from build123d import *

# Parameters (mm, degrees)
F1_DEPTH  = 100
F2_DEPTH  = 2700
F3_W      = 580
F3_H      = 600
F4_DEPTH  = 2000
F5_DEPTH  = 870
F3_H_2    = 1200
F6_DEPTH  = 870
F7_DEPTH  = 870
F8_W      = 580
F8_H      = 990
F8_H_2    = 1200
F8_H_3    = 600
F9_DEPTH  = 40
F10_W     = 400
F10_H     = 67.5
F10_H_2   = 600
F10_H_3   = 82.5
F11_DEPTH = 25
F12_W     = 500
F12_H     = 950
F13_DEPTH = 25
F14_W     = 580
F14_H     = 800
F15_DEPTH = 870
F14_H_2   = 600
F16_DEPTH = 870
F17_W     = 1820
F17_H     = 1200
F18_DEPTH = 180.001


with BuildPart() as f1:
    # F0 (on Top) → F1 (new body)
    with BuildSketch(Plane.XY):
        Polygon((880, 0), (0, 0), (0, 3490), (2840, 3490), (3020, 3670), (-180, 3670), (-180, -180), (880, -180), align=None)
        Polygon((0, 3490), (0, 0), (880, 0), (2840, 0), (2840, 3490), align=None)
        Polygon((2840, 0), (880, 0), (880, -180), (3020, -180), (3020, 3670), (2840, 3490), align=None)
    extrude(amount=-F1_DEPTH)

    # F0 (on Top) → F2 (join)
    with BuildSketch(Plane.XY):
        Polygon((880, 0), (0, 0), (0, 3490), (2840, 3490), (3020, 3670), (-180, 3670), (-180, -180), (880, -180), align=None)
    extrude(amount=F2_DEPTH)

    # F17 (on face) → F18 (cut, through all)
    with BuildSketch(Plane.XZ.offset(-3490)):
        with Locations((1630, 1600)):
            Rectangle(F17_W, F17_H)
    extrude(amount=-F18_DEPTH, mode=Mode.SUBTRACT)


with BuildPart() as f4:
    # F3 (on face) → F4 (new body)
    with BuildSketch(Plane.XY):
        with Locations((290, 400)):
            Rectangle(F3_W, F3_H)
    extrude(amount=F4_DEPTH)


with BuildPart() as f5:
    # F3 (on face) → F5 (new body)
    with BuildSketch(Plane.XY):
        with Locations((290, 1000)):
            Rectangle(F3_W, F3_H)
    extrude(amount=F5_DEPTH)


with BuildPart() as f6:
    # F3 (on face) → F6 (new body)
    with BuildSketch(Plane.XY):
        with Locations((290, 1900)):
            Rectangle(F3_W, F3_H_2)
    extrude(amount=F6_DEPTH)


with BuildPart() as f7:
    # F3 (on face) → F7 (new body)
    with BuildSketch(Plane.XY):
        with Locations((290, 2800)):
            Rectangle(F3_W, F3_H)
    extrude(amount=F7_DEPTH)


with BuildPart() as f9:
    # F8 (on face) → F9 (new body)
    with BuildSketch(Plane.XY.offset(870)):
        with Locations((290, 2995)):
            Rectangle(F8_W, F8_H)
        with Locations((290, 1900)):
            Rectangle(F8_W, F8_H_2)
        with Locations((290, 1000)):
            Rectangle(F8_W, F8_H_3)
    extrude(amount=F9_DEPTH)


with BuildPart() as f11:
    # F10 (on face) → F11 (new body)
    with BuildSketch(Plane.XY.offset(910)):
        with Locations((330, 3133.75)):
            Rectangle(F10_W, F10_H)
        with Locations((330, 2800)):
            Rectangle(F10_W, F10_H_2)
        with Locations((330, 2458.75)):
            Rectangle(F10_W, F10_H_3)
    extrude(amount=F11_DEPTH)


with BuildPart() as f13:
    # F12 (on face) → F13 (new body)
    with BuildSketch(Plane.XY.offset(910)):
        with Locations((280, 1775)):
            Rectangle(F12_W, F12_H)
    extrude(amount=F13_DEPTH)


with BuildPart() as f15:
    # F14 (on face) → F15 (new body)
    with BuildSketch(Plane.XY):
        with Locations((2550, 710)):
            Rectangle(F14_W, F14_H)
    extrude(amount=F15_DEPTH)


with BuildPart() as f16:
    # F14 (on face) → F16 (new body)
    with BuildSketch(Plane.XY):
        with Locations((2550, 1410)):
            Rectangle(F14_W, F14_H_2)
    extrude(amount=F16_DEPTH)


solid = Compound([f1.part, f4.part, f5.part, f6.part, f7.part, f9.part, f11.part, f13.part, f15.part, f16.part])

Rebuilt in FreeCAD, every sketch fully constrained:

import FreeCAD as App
import Part
import Sketcher
from FreeCAD import Vector
Q = App.Units.Quantity

doc = App.newDocument("Part")
params = doc.addObject("Spreadsheet::Sheet", "Params")
for row, (alias, value) in enumerate([
    ("sketch1_width", "3200 mm"),
    ("sketch1_height", "3850 mm"),
    ("pad1_length", "100 mm"),
    ("sketch2_width", "880 mm"),
    ("sketch2_width2", "2840 mm"),
    ("sketch2_width3", "3200 mm"),
    ("sketch2_width4", "1060 mm"),
    ("sketch2_height", "3490 mm"),
    ("pad2_length", "2700 mm"),
    ("sketch3_width", "1820 mm"),
    ("sketch3_height", "1200 mm"),
    ("sketch4_width", "580 mm"),
    ("sketch4_height", "600 mm"),
    ("pad3_length", "2000 mm"),
    ("sketch5_width", "580 mm"),
    ("sketch5_height", "600 mm"),
    ("pad4_length", "870 mm"),
    ("sketch6_width", "580 mm"),
    ("sketch6_height", "1200 mm"),
    ("pad5_length", "870 mm"),
    ("sketch7_width", "580 mm"),
    ("sketch7_height", "600 mm"),
    ("pad6_length", "870 mm"),
    ("sketch8_width", "580 mm"),
    ("sketch8_height", "2790 mm"),
    ("pad7_length", "40 mm"),
    ("sketch9_width", "400 mm"),
    ("sketch9_height", "750 mm"),
    ("pad8_length", "25 mm"),
    ("sketch10_width", "500 mm"),
    ("sketch10_height", "950 mm"),
    ("pad9_length", "25 mm"),
    ("sketch11_width", "580 mm"),
    ("sketch11_height", "800 mm"),
    ("pad10_length", "870 mm"),
    ("sketch12_width", "580 mm"),
    ("sketch12_height", "600 mm"),
    ("pad11_length", "870 mm"),
], start=1):
    params.set(f"A{row}", alias)
    params.set(f"B{row}", "=" + value)
    params.setAlias(f"B{row}", alias)

body = doc.addObject("PartDesign::Body", "Body")

sketch1 = body.newObject("Sketcher::SketchObject", "Sketch")
sketch1.AttachmentSupport = (doc.getObject("XY_Plane"), [""])
sketch1.MapMode = "FlatFace"
sketch1.addGeometry(Part.LineSegment(Vector(3020, 3670, 0), Vector(-180, 3670, 0)), False)
sketch1.addGeometry(Part.LineSegment(Vector(-180, 3670, 0), Vector(-180, -180, 0)), False)
sketch1.addGeometry(Part.LineSegment(Vector(-180, -180, 0), Vector(3020, -180, 0)), False)
sketch1.addGeometry(Part.LineSegment(Vector(3020, -180, 0), Vector(3020, 3670, 0)), False)
sketch1.addConstraint(Sketcher.Constraint("Coincident", 0, 2, 1, 1))
sketch1.addConstraint(Sketcher.Constraint("Coincident", 1, 2, 2, 1))
sketch1.addConstraint(Sketcher.Constraint("Coincident", 2, 2, 3, 1))
sketch1.addConstraint(Sketcher.Constraint("Coincident", 3, 2, 0, 1))
sketch1.addConstraint(Sketcher.Constraint("Horizontal", 0))
sketch1.addConstraint(Sketcher.Constraint("Vertical", 1))
sketch1.addConstraint(Sketcher.Constraint("Horizontal", 2))
sketch1.addConstraint(Sketcher.Constraint("Vertical", 3))
sketch1.addConstraint(Sketcher.Constraint("DistanceX", 0, 2, 0, 1, Q("3200 mm")))
sketch1.addConstraint(Sketcher.Constraint("DistanceY", 1, 2, 1, 1, Q("3850 mm")))
sketch1.addConstraint(Sketcher.Constraint("DistanceX", 0, 2, -1, 1, Q("180 mm")))
sketch1.addConstraint(Sketcher.Constraint("DistanceY", -1, 1, 0, 2, Q("3670 mm")))
sketch1.setExpression("Constraints[8]", "Params.sketch1_width")
sketch1.setExpression("Constraints[9]", "Params.sketch1_height")
pad1 = body.newObject("PartDesign::Pad", "Pad")
pad1.Profile = sketch1
pad1.setExpression("Length", "Params.pad1_length")
pad1.Reversed = True

sketch2 = body.newObject("Sketcher::SketchObject", "Sketch001")
sketch2.AttachmentSupport = (doc.getObject("XY_Plane"), [""])
sketch2.MapMode = "FlatFace"
sketch2.addGeometry(Part.LineSegment(Vector(880, 0, 0), Vector(0, 0, 0)), False)
sketch2.addGeometry(Part.LineSegment(Vector(0, 0, 0), Vector(0, 3490, 0)), False)
sketch2.addGeometry(Part.LineSegment(Vector(0, 3490, 0), Vector(2840, 3490, 0)), False)
sketch2.addGeometry(Part.LineSegment(Vector(2840, 3490, 0), Vector(3020, 3670, 0)), False)
sketch2.addGeometry(Part.LineSegment(Vector(3020, 3670, 0), Vector(-180, 3670, 0)), False)
sketch2.addGeometry(Part.LineSegment(Vector(-180, 3670, 0), Vector(-180, -180, 0)), False)
sketch2.addGeometry(Part.LineSegment(Vector(-180, -180, 0), Vector(880, -180, 0)), False)
sketch2.addGeometry(Part.LineSegment(Vector(880, -180, 0), Vector(880, 0, 0)), False)
sketch2.addConstraint(Sketcher.Constraint("Coincident", 0, 2, 1, 1))
sketch2.addConstraint(Sketcher.Constraint("Coincident", 1, 2, 2, 1))
sketch2.addConstraint(Sketcher.Constraint("Coincident", 2, 2, 3, 1))
sketch2.addConstraint(Sketcher.Constraint("Coincident", 3, 2, 4, 1))
sketch2.addConstraint(Sketcher.Constraint("Coincident", 4, 2, 5, 1))
sketch2.addConstraint(Sketcher.Constraint("Coincident", 5, 2, 6, 1))
sketch2.addConstraint(Sketcher.Constraint("Coincident", 6, 2, 7, 1))
sketch2.addConstraint(Sketcher.Constraint("Coincident", 7, 2, 0, 1))
sketch2.addConstraint(Sketcher.Constraint("Horizontal", 0))
sketch2.addConstraint(Sketcher.Constraint("Vertical", 1))
sketch2.addConstraint(Sketcher.Constraint("Horizontal", 2))
sketch2.addConstraint(Sketcher.Constraint("Horizontal", 4))
sketch2.addConstraint(Sketcher.Constraint("Vertical", 5))
sketch2.addConstraint(Sketcher.Constraint("Horizontal", 6))
sketch2.addConstraint(Sketcher.Constraint("Vertical", 7))
sketch2.addConstraint(Sketcher.Constraint("Coincident", 0, 2, -1, 1))
sketch2.addConstraint(Sketcher.Constraint("DistanceX", 0, 2, 0, 1, Q("880 mm")))
sketch2.addConstraint(Sketcher.Constraint("DistanceX", 2, 1, 2, 2, Q("2840 mm")))
sketch2.addConstraint(Sketcher.Constraint("DistanceX", 4, 2, 4, 1, Q("3200 mm")))
sketch2.addConstraint(Sketcher.Constraint("DistanceX", 6, 1, 6, 2, Q("1060 mm")))
sketch2.addConstraint(Sketcher.Constraint("DistanceY", 1, 1, 1, 2, Q("3490 mm")))
sketch2.addConstraint(Sketcher.Constraint("DistanceY", 5, 2, 5, 1, Q("3850 mm")))
sketch2.addConstraint(Sketcher.Constraint("DistanceY", 7, 1, 7, 2, Q("180 mm")))
sketch2.setExpression("Constraints[16]", "Params.sketch2_width")
sketch2.setExpression("Constraints[17]", "Params.sketch2_width2")
sketch2.setExpression("Constraints[18]", "Params.sketch2_width3")
sketch2.setExpression("Constraints[19]", "Params.sketch2_width4")
sketch2.setExpression("Constraints[20]", "Params.sketch2_height")
pad2 = body.newObject("PartDesign::Pad", "Pad001")
pad2.Profile = sketch2
pad2.setExpression("Length", "Params.pad2_length")

sketch3 = body.newObject("Sketcher::SketchObject", "Sketch002")
sketch3.AttachmentSupport = (doc.getObject("XZ_Plane"), [""])
sketch3.MapMode = "FlatFace"
sketch3.AttachmentOffset = App.Placement(Vector(0, 0, -3490), App.Rotation())
sketch3.addGeometry(Part.LineSegment(Vector(720, 2200, 0), Vector(720, 1000, 0)), False)
sketch3.addGeometry(Part.LineSegment(Vector(720, 1000, 0), Vector(2540, 1000, 0)), False)
sketch3.addGeometry(Part.LineSegment(Vector(2540, 1000, 0), Vector(2540, 2200, 0)), False)
sketch3.addGeometry(Part.LineSegment(Vector(2540, 2200, 0), Vector(720, 2200, 0)), False)
sketch3.addConstraint(Sketcher.Constraint("Coincident", 0, 2, 1, 1))
sketch3.addConstraint(Sketcher.Constraint("Coincident", 1, 2, 2, 1))
sketch3.addConstraint(Sketcher.Constraint("Coincident", 2, 2, 3, 1))
sketch3.addConstraint(Sketcher.Constraint("Coincident", 3, 2, 0, 1))
sketch3.addConstraint(Sketcher.Constraint("Vertical", 0))
sketch3.addConstraint(Sketcher.Constraint("Horizontal", 1))
sketch3.addConstraint(Sketcher.Constraint("Vertical", 2))
sketch3.addConstraint(Sketcher.Constraint("Horizontal", 3))
sketch3.addConstraint(Sketcher.Constraint("DistanceX", 1, 1, 1, 2, Q("1820 mm")))
sketch3.addConstraint(Sketcher.Constraint("DistanceY", 0, 2, 0, 1, Q("1200 mm")))
sketch3.addConstraint(Sketcher.Constraint("DistanceX", -1, 1, 0, 2, Q("720 mm")))
sketch3.addConstraint(Sketcher.Constraint("DistanceY", -1, 1, 0, 2, Q("1000 mm")))
sketch3.setExpression("Constraints[8]", "Params.sketch3_width")
sketch3.setExpression("Constraints[9]", "Params.sketch3_height")
pocket1 = body.newObject("PartDesign::Pocket", "Pocket")
pocket1.Profile = sketch3
pocket1.Type = "ThroughAll"
body2 = doc.addObject("PartDesign::Body", "Body001")

sketch4 = body2.newObject("Sketcher::SketchObject", "Sketch003")
sketch4.AttachmentSupport = (doc.getObject("XY_Plane001"), [""])
sketch4.MapMode = "FlatFace"
sketch4.addGeometry(Part.LineSegment(Vector(0, 700, 0), Vector(0, 100, 0)), False)
sketch4.addGeometry(Part.LineSegment(Vector(0, 100, 0), Vector(580, 100, 0)), False)
sketch4.addGeometry(Part.LineSegment(Vector(580, 100, 0), Vector(580, 700, 0)), False)
sketch4.addGeometry(Part.LineSegment(Vector(580, 700, 0), Vector(0, 700, 0)), False)
sketch4.addConstraint(Sketcher.Constraint("Coincident", 0, 2, 1, 1))
sketch4.addConstraint(Sketcher.Constraint("Coincident", 1, 2, 2, 1))
sketch4.addConstraint(Sketcher.Constraint("Coincident", 2, 2, 3, 1))
sketch4.addConstraint(Sketcher.Constraint("Coincident", 3, 2, 0, 1))
sketch4.addConstraint(Sketcher.Constraint("Vertical", 0))
sketch4.addConstraint(Sketcher.Constraint("Horizontal", 1))
sketch4.addConstraint(Sketcher.Constraint("Vertical", 2))
sketch4.addConstraint(Sketcher.Constraint("Horizontal", 3))
sketch4.addConstraint(Sketcher.Constraint("PointOnObject", 0, 2, -2))
sketch4.addConstraint(Sketcher.Constraint("DistanceX", 1, 1, 1, 2, Q("580 mm")))
sketch4.addConstraint(Sketcher.Constraint("DistanceY", 0, 2, 0, 1, Q("600 mm")))
sketch4.addConstraint(Sketcher.Constraint("DistanceY", -1, 1, 0, 2, Q("100 mm")))
sketch4.setExpression("Constraints[9]", "Params.sketch4_width")
sketch4.setExpression("Constraints[10]", "Params.sketch4_height")
pad3 = body2.newObject("PartDesign::Pad", "Pad002")
pad3.Profile = sketch4
pad3.setExpression("Length", "Params.pad3_length")
body3 = doc.addObject("PartDesign::Body", "Body002")

sketch5 = body3.newObject("Sketcher::SketchObject", "Sketch004")
sketch5.AttachmentSupport = (doc.getObject("XY_Plane002"), [""])
sketch5.MapMode = "FlatFace"
sketch5.addGeometry(Part.LineSegment(Vector(0, 1300, 0), Vector(0, 700, 0)), False)
sketch5.addGeometry(Part.LineSegment(Vector(0, 700, 0), Vector(580, 700, 0)), False)
sketch5.addGeometry(Part.LineSegment(Vector(580, 700, 0), Vector(580, 1300, 0)), False)
sketch5.addGeometry(Part.LineSegment(Vector(580, 1300, 0), Vector(0, 1300, 0)), False)
sketch5.addConstraint(Sketcher.Constraint("Coincident", 0, 2, 1, 1))
sketch5.addConstraint(Sketcher.Constraint("Coincident", 1, 2, 2, 1))
sketch5.addConstraint(Sketcher.Constraint("Coincident", 2, 2, 3, 1))
sketch5.addConstraint(Sketcher.Constraint("Coincident", 3, 2, 0, 1))
sketch5.addConstraint(Sketcher.Constraint("Vertical", 0))
sketch5.addConstraint(Sketcher.Constraint("Horizontal", 1))
sketch5.addConstraint(Sketcher.Constraint("Vertical", 2))
sketch5.addConstraint(Sketcher.Constraint("Horizontal", 3))
sketch5.addConstraint(Sketcher.Constraint("PointOnObject", 0, 2, -2))
sketch5.addConstraint(Sketcher.Constraint("DistanceX", 1, 1, 1, 2, Q("580 mm")))
sketch5.addConstraint(Sketcher.Constraint("DistanceY", 0, 2, 0, 1, Q("600 mm")))
sketch5.addConstraint(Sketcher.Constraint("DistanceY", -1, 1, 0, 2, Q("700 mm")))
sketch5.setExpression("Constraints[9]", "Params.sketch5_width")
sketch5.setExpression("Constraints[10]", "Params.sketch5_height")
pad4 = body3.newObject("PartDesign::Pad", "Pad003")
pad4.Profile = sketch5
pad4.setExpression("Length", "Params.pad4_length")
body4 = doc.addObject("PartDesign::Body", "Body003")

sketch6 = body4.newObject("Sketcher::SketchObject", "Sketch005")
sketch6.AttachmentSupport = (doc.getObject("XY_Plane003"), [""])
sketch6.MapMode = "FlatFace"
sketch6.addGeometry(Part.LineSegment(Vector(0, 2500, 0), Vector(0, 1300, 0)), False)
sketch6.addGeometry(Part.LineSegment(Vector(0, 1300, 0), Vector(580, 1300, 0)), False)
sketch6.addGeometry(Part.LineSegment(Vector(580, 1300, 0), Vector(580, 2500, 0)), False)
sketch6.addGeometry(Part.LineSegment(Vector(580, 2500, 0), Vector(0, 2500, 0)), False)
sketch6.addConstraint(Sketcher.Constraint("Coincident", 0, 2, 1, 1))
sketch6.addConstraint(Sketcher.Constraint("Coincident", 1, 2, 2, 1))
sketch6.addConstraint(Sketcher.Constraint("Coincident", 2, 2, 3, 1))
sketch6.addConstraint(Sketcher.Constraint("Coincident", 3, 2, 0, 1))
sketch6.addConstraint(Sketcher.Constraint("Vertical", 0))
sketch6.addConstraint(Sketcher.Constraint("Horizontal", 1))
sketch6.addConstraint(Sketcher.Constraint("Vertical", 2))
sketch6.addConstraint(Sketcher.Constraint("Horizontal", 3))
sketch6.addConstraint(Sketcher.Constraint("PointOnObject", 0, 2, -2))
sketch6.addConstraint(Sketcher.Constraint("DistanceX", 1, 1, 1, 2, Q("580 mm")))
sketch6.addConstraint(Sketcher.Constraint("DistanceY", 0, 2, 0, 1, Q("1200 mm")))
sketch6.addConstraint(Sketcher.Constraint("DistanceY", -1, 1, 0, 2, Q("1300 mm")))
sketch6.setExpression("Constraints[9]", "Params.sketch6_width")
sketch6.setExpression("Constraints[10]", "Params.sketch6_height")
pad5 = body4.newObject("PartDesign::Pad", "Pad004")
pad5.Profile = sketch6
pad5.setExpression("Length", "Params.pad5_length")
body5 = doc.addObject("PartDesign::Body", "Body004")

sketch7 = body5.newObject("Sketcher::SketchObject", "Sketch006")
sketch7.AttachmentSupport = (doc.getObject("XY_Plane004"), [""])
sketch7.MapMode = "FlatFace"
sketch7.addGeometry(Part.LineSegment(Vector(0, 3100, 0), Vector(0, 2500, 0)), False)
sketch7.addGeometry(Part.LineSegment(Vector(0, 2500, 0), Vector(580, 2500, 0)), False)
sketch7.addGeometry(Part.LineSegment(Vector(580, 2500, 0), Vector(580, 3100, 0)), False)
sketch7.addGeometry(Part.LineSegment(Vector(580, 3100, 0), Vector(0, 3100, 0)), False)
sketch7.addConstraint(Sketcher.Constraint("Coincident", 0, 2, 1, 1))
sketch7.addConstraint(Sketcher.Constraint("Coincident", 1, 2, 2, 1))
sketch7.addConstraint(Sketcher.Constraint("Coincident", 2, 2, 3, 1))
sketch7.addConstraint(Sketcher.Constraint("Coincident", 3, 2, 0, 1))
sketch7.addConstraint(Sketcher.Constraint("Vertical", 0))
sketch7.addConstraint(Sketcher.Constraint("Horizontal", 1))
sketch7.addConstraint(Sketcher.Constraint("Vertical", 2))
sketch7.addConstraint(Sketcher.Constraint("Horizontal", 3))
sketch7.addConstraint(Sketcher.Constraint("PointOnObject", 0, 2, -2))
sketch7.addConstraint(Sketcher.Constraint("DistanceX", 1, 1, 1, 2, Q("580 mm")))
sketch7.addConstraint(Sketcher.Constraint("DistanceY", 0, 2, 0, 1, Q("600 mm")))
sketch7.addConstraint(Sketcher.Constraint("DistanceY", -1, 1, 0, 2, Q("2500 mm")))
sketch7.setExpression("Constraints[9]", "Params.sketch7_width")
sketch7.setExpression("Constraints[10]", "Params.sketch7_height")
pad6 = body5.newObject("PartDesign::Pad", "Pad005")
pad6.Profile = sketch7
pad6.setExpression("Length", "Params.pad6_length")
body6 = doc.addObject("PartDesign::Body", "Body005")

sketch8 = body6.newObject("Sketcher::SketchObject", "Sketch007")
sketch8.AttachmentSupport = (doc.getObject("XY_Plane005"), [""])
sketch8.MapMode = "FlatFace"
sketch8.AttachmentOffset = App.Placement(Vector(0, 0, 870), App.Rotation())
sketch8.addGeometry(Part.LineSegment(Vector(0, 3490, 0), Vector(0, 700, 0)), False)
sketch8.addGeometry(Part.LineSegment(Vector(0, 700, 0), Vector(580, 700, 0)), False)
sketch8.addGeometry(Part.LineSegment(Vector(580, 700, 0), Vector(580, 3490, 0)), False)
sketch8.addGeometry(Part.LineSegment(Vector(580, 3490, 0), Vector(0, 3490, 0)), False)
sketch8.addConstraint(Sketcher.Constraint("Coincident", 0, 2, 1, 1))
sketch8.addConstraint(Sketcher.Constraint("Coincident", 1, 2, 2, 1))
sketch8.addConstraint(Sketcher.Constraint("Coincident", 2, 2, 3, 1))
sketch8.addConstraint(Sketcher.Constraint("Coincident", 3, 2, 0, 1))
sketch8.addConstraint(Sketcher.Constraint("Vertical", 0))
sketch8.addConstraint(Sketcher.Constraint("Horizontal", 1))
sketch8.addConstraint(Sketcher.Constraint("Vertical", 2))
sketch8.addConstraint(Sketcher.Constraint("Horizontal", 3))
sketch8.addConstraint(Sketcher.Constraint("PointOnObject", 0, 2, -2))
sketch8.addConstraint(Sketcher.Constraint("DistanceX", 1, 1, 1, 2, Q("580 mm")))
sketch8.addConstraint(Sketcher.Constraint("DistanceY", 0, 2, 0, 1, Q("2790 mm")))
sketch8.addConstraint(Sketcher.Constraint("DistanceY", -1, 1, 0, 2, Q("700 mm")))
sketch8.setExpression("Constraints[9]", "Params.sketch8_width")
sketch8.setExpression("Constraints[10]", "Params.sketch8_height")
pad7 = body6.newObject("PartDesign::Pad", "Pad006")
pad7.Profile = sketch8
pad7.setExpression("Length", "Params.pad7_length")
body7 = doc.addObject("PartDesign::Body", "Body006")

sketch9 = body7.newObject("Sketcher::SketchObject", "Sketch008")
sketch9.AttachmentSupport = (doc.getObject("XY_Plane006"), [""])
sketch9.MapMode = "FlatFace"
sketch9.AttachmentOffset = App.Placement(Vector(0, 0, 910), App.Rotation())
sketch9.addGeometry(Part.LineSegment(Vector(130, 3168, 0), Vector(130, 2418, 0)), False)
sketch9.addGeometry(Part.LineSegment(Vector(130, 2418, 0), Vector(530, 2418, 0)), False)
sketch9.addGeometry(Part.LineSegment(Vector(530, 2418, 0), Vector(530, 3168, 0)), False)
sketch9.addGeometry(Part.LineSegment(Vector(530, 3168, 0), Vector(130, 3168, 0)), False)
sketch9.addConstraint(Sketcher.Constraint("Coincident", 0, 2, 1, 1))
sketch9.addConstraint(Sketcher.Constraint("Coincident", 1, 2, 2, 1))
sketch9.addConstraint(Sketcher.Constraint("Coincident", 2, 2, 3, 1))
sketch9.addConstraint(Sketcher.Constraint("Coincident", 3, 2, 0, 1))
sketch9.addConstraint(Sketcher.Constraint("Vertical", 0))
sketch9.addConstraint(Sketcher.Constraint("Horizontal", 1))
sketch9.addConstraint(Sketcher.Constraint("Vertical", 2))
sketch9.addConstraint(Sketcher.Constraint("Horizontal", 3))
sketch9.addConstraint(Sketcher.Constraint("DistanceX", 1, 1, 1, 2, Q("400 mm")))
sketch9.addConstraint(Sketcher.Constraint("DistanceY", 0, 2, 0, 1, Q("750 mm")))
sketch9.addConstraint(Sketcher.Constraint("DistanceX", -1, 1, 0, 2, Q("130 mm")))
sketch9.addConstraint(Sketcher.Constraint("DistanceY", -1, 1, 0, 2, Q("2417.5 mm")))
sketch9.setExpression("Constraints[8]", "Params.sketch9_width")
sketch9.setExpression("Constraints[9]", "Params.sketch9_height")
pad8 = body7.newObject("PartDesign::Pad", "Pad007")
pad8.Profile = sketch9
pad8.setExpression("Length", "Params.pad8_length")
body8 = doc.addObject("PartDesign::Body", "Body007")

sketch10 = body8.newObject("Sketcher::SketchObject", "Sketch009")
sketch10.AttachmentSupport = (doc.getObject("XY_Plane007"), [""])
sketch10.MapMode = "FlatFace"
sketch10.AttachmentOffset = App.Placement(Vector(0, 0, 910), App.Rotation())
sketch10.addGeometry(Part.LineSegment(Vector(30, 2250, 0), Vector(30, 1300, 0)), False)
sketch10.addGeometry(Part.LineSegment(Vector(30, 1300, 0), Vector(530, 1300, 0)), False)
sketch10.addGeometry(Part.LineSegment(Vector(530, 1300, 0), Vector(530, 2250, 0)), False)
sketch10.addGeometry(Part.LineSegment(Vector(530, 2250, 0), Vector(30, 2250, 0)), False)
sketch10.addConstraint(Sketcher.Constraint("Coincident", 0, 2, 1, 1))
sketch10.addConstraint(Sketcher.Constraint("Coincident", 1, 2, 2, 1))
sketch10.addConstraint(Sketcher.Constraint("Coincident", 2, 2, 3, 1))
sketch10.addConstraint(Sketcher.Constraint("Coincident", 3, 2, 0, 1))
sketch10.addConstraint(Sketcher.Constraint("Vertical", 0))
sketch10.addConstraint(Sketcher.Constraint("Horizontal", 1))
sketch10.addConstraint(Sketcher.Constraint("Vertical", 2))
sketch10.addConstraint(Sketcher.Constraint("Horizontal", 3))
sketch10.addConstraint(Sketcher.Constraint("DistanceX", 1, 1, 1, 2, Q("500 mm")))
sketch10.addConstraint(Sketcher.Constraint("DistanceY", 0, 2, 0, 1, Q("950 mm")))
sketch10.addConstraint(Sketcher.Constraint("DistanceX", -1, 1, 0, 2, Q("30 mm")))
sketch10.addConstraint(Sketcher.Constraint("DistanceY", -1, 1, 0, 2, Q("1300 mm")))
sketch10.setExpression("Constraints[8]", "Params.sketch10_width")
sketch10.setExpression("Constraints[9]", "Params.sketch10_height")
pad9 = body8.newObject("PartDesign::Pad", "Pad008")
pad9.Profile = sketch10
pad9.setExpression("Length", "Params.pad9_length")
body9 = doc.addObject("PartDesign::Body", "Body008")

sketch11 = body9.newObject("Sketcher::SketchObject", "Sketch010")
sketch11.AttachmentSupport = (doc.getObject("XY_Plane008"), [""])
sketch11.MapMode = "FlatFace"
sketch11.addGeometry(Part.LineSegment(Vector(2260, 1110, 0), Vector(2260, 310, 0)), False)
sketch11.addGeometry(Part.LineSegment(Vector(2260, 310, 0), Vector(2840, 310, 0)), False)
sketch11.addGeometry(Part.LineSegment(Vector(2840, 310, 0), Vector(2840, 1110, 0)), False)
sketch11.addGeometry(Part.LineSegment(Vector(2840, 1110, 0), Vector(2260, 1110, 0)), False)
sketch11.addConstraint(Sketcher.Constraint("Coincident", 0, 2, 1, 1))
sketch11.addConstraint(Sketcher.Constraint("Coincident", 1, 2, 2, 1))
sketch11.addConstraint(Sketcher.Constraint("Coincident", 2, 2, 3, 1))
sketch11.addConstraint(Sketcher.Constraint("Coincident", 3, 2, 0, 1))
sketch11.addConstraint(Sketcher.Constraint("Vertical", 0))
sketch11.addConstraint(Sketcher.Constraint("Horizontal", 1))
sketch11.addConstraint(Sketcher.Constraint("Vertical", 2))
sketch11.addConstraint(Sketcher.Constraint("Horizontal", 3))
sketch11.addConstraint(Sketcher.Constraint("DistanceX", 1, 1, 1, 2, Q("580 mm")))
sketch11.addConstraint(Sketcher.Constraint("DistanceY", 0, 2, 0, 1, Q("800 mm")))
sketch11.addConstraint(Sketcher.Constraint("DistanceX", -1, 1, 0, 2, Q("2260 mm")))
sketch11.addConstraint(Sketcher.Constraint("DistanceY", -1, 1, 0, 2, Q("310 mm")))
sketch11.setExpression("Constraints[8]", "Params.sketch11_width")
sketch11.setExpression("Constraints[9]", "Params.sketch11_height")
pad10 = body9.newObject("PartDesign::Pad", "Pad009")
pad10.Profile = sketch11
pad10.setExpression("Length", "Params.pad10_length")
body10 = doc.addObject("PartDesign::Body", "Body009")

sketch12 = body10.newObject("Sketcher::SketchObject", "Sketch011")
sketch12.AttachmentSupport = (doc.getObject("XY_Plane009"), [""])
sketch12.MapMode = "FlatFace"
sketch12.addGeometry(Part.LineSegment(Vector(2260, 1710, 0), Vector(2260, 1110, 0)), False)
sketch12.addGeometry(Part.LineSegment(Vector(2260, 1110, 0), Vector(2840, 1110, 0)), False)
sketch12.addGeometry(Part.LineSegment(Vector(2840, 1110, 0), Vector(2840, 1710, 0)), False)
sketch12.addGeometry(Part.LineSegment(Vector(2840, 1710, 0), Vector(2260, 1710, 0)), False)
sketch12.addConstraint(Sketcher.Constraint("Coincident", 0, 2, 1, 1))
sketch12.addConstraint(Sketcher.Constraint("Coincident", 1, 2, 2, 1))
sketch12.addConstraint(Sketcher.Constraint("Coincident", 2, 2, 3, 1))
sketch12.addConstraint(Sketcher.Constraint("Coincident", 3, 2, 0, 1))
sketch12.addConstraint(Sketcher.Constraint("Vertical", 0))
sketch12.addConstraint(Sketcher.Constraint("Horizontal", 1))
sketch12.addConstraint(Sketcher.Constraint("Vertical", 2))
sketch12.addConstraint(Sketcher.Constraint("Horizontal", 3))
sketch12.addConstraint(Sketcher.Constraint("DistanceX", 1, 1, 1, 2, Q("580 mm")))
sketch12.addConstraint(Sketcher.Constraint("DistanceY", 0, 2, 0, 1, Q("600 mm")))
sketch12.addConstraint(Sketcher.Constraint("DistanceX", -1, 1, 0, 2, Q("2260 mm")))
sketch12.addConstraint(Sketcher.Constraint("DistanceY", -1, 1, 0, 2, Q("1110 mm")))
sketch12.setExpression("Constraints[8]", "Params.sketch12_width")
sketch12.setExpression("Constraints[9]", "Params.sketch12_height")
pad11 = body10.newObject("PartDesign::Pad", "Pad010")
pad11.Profile = sketch12
pad11.setExpression("Length", "Params.pad11_length")

doc.recompute()
